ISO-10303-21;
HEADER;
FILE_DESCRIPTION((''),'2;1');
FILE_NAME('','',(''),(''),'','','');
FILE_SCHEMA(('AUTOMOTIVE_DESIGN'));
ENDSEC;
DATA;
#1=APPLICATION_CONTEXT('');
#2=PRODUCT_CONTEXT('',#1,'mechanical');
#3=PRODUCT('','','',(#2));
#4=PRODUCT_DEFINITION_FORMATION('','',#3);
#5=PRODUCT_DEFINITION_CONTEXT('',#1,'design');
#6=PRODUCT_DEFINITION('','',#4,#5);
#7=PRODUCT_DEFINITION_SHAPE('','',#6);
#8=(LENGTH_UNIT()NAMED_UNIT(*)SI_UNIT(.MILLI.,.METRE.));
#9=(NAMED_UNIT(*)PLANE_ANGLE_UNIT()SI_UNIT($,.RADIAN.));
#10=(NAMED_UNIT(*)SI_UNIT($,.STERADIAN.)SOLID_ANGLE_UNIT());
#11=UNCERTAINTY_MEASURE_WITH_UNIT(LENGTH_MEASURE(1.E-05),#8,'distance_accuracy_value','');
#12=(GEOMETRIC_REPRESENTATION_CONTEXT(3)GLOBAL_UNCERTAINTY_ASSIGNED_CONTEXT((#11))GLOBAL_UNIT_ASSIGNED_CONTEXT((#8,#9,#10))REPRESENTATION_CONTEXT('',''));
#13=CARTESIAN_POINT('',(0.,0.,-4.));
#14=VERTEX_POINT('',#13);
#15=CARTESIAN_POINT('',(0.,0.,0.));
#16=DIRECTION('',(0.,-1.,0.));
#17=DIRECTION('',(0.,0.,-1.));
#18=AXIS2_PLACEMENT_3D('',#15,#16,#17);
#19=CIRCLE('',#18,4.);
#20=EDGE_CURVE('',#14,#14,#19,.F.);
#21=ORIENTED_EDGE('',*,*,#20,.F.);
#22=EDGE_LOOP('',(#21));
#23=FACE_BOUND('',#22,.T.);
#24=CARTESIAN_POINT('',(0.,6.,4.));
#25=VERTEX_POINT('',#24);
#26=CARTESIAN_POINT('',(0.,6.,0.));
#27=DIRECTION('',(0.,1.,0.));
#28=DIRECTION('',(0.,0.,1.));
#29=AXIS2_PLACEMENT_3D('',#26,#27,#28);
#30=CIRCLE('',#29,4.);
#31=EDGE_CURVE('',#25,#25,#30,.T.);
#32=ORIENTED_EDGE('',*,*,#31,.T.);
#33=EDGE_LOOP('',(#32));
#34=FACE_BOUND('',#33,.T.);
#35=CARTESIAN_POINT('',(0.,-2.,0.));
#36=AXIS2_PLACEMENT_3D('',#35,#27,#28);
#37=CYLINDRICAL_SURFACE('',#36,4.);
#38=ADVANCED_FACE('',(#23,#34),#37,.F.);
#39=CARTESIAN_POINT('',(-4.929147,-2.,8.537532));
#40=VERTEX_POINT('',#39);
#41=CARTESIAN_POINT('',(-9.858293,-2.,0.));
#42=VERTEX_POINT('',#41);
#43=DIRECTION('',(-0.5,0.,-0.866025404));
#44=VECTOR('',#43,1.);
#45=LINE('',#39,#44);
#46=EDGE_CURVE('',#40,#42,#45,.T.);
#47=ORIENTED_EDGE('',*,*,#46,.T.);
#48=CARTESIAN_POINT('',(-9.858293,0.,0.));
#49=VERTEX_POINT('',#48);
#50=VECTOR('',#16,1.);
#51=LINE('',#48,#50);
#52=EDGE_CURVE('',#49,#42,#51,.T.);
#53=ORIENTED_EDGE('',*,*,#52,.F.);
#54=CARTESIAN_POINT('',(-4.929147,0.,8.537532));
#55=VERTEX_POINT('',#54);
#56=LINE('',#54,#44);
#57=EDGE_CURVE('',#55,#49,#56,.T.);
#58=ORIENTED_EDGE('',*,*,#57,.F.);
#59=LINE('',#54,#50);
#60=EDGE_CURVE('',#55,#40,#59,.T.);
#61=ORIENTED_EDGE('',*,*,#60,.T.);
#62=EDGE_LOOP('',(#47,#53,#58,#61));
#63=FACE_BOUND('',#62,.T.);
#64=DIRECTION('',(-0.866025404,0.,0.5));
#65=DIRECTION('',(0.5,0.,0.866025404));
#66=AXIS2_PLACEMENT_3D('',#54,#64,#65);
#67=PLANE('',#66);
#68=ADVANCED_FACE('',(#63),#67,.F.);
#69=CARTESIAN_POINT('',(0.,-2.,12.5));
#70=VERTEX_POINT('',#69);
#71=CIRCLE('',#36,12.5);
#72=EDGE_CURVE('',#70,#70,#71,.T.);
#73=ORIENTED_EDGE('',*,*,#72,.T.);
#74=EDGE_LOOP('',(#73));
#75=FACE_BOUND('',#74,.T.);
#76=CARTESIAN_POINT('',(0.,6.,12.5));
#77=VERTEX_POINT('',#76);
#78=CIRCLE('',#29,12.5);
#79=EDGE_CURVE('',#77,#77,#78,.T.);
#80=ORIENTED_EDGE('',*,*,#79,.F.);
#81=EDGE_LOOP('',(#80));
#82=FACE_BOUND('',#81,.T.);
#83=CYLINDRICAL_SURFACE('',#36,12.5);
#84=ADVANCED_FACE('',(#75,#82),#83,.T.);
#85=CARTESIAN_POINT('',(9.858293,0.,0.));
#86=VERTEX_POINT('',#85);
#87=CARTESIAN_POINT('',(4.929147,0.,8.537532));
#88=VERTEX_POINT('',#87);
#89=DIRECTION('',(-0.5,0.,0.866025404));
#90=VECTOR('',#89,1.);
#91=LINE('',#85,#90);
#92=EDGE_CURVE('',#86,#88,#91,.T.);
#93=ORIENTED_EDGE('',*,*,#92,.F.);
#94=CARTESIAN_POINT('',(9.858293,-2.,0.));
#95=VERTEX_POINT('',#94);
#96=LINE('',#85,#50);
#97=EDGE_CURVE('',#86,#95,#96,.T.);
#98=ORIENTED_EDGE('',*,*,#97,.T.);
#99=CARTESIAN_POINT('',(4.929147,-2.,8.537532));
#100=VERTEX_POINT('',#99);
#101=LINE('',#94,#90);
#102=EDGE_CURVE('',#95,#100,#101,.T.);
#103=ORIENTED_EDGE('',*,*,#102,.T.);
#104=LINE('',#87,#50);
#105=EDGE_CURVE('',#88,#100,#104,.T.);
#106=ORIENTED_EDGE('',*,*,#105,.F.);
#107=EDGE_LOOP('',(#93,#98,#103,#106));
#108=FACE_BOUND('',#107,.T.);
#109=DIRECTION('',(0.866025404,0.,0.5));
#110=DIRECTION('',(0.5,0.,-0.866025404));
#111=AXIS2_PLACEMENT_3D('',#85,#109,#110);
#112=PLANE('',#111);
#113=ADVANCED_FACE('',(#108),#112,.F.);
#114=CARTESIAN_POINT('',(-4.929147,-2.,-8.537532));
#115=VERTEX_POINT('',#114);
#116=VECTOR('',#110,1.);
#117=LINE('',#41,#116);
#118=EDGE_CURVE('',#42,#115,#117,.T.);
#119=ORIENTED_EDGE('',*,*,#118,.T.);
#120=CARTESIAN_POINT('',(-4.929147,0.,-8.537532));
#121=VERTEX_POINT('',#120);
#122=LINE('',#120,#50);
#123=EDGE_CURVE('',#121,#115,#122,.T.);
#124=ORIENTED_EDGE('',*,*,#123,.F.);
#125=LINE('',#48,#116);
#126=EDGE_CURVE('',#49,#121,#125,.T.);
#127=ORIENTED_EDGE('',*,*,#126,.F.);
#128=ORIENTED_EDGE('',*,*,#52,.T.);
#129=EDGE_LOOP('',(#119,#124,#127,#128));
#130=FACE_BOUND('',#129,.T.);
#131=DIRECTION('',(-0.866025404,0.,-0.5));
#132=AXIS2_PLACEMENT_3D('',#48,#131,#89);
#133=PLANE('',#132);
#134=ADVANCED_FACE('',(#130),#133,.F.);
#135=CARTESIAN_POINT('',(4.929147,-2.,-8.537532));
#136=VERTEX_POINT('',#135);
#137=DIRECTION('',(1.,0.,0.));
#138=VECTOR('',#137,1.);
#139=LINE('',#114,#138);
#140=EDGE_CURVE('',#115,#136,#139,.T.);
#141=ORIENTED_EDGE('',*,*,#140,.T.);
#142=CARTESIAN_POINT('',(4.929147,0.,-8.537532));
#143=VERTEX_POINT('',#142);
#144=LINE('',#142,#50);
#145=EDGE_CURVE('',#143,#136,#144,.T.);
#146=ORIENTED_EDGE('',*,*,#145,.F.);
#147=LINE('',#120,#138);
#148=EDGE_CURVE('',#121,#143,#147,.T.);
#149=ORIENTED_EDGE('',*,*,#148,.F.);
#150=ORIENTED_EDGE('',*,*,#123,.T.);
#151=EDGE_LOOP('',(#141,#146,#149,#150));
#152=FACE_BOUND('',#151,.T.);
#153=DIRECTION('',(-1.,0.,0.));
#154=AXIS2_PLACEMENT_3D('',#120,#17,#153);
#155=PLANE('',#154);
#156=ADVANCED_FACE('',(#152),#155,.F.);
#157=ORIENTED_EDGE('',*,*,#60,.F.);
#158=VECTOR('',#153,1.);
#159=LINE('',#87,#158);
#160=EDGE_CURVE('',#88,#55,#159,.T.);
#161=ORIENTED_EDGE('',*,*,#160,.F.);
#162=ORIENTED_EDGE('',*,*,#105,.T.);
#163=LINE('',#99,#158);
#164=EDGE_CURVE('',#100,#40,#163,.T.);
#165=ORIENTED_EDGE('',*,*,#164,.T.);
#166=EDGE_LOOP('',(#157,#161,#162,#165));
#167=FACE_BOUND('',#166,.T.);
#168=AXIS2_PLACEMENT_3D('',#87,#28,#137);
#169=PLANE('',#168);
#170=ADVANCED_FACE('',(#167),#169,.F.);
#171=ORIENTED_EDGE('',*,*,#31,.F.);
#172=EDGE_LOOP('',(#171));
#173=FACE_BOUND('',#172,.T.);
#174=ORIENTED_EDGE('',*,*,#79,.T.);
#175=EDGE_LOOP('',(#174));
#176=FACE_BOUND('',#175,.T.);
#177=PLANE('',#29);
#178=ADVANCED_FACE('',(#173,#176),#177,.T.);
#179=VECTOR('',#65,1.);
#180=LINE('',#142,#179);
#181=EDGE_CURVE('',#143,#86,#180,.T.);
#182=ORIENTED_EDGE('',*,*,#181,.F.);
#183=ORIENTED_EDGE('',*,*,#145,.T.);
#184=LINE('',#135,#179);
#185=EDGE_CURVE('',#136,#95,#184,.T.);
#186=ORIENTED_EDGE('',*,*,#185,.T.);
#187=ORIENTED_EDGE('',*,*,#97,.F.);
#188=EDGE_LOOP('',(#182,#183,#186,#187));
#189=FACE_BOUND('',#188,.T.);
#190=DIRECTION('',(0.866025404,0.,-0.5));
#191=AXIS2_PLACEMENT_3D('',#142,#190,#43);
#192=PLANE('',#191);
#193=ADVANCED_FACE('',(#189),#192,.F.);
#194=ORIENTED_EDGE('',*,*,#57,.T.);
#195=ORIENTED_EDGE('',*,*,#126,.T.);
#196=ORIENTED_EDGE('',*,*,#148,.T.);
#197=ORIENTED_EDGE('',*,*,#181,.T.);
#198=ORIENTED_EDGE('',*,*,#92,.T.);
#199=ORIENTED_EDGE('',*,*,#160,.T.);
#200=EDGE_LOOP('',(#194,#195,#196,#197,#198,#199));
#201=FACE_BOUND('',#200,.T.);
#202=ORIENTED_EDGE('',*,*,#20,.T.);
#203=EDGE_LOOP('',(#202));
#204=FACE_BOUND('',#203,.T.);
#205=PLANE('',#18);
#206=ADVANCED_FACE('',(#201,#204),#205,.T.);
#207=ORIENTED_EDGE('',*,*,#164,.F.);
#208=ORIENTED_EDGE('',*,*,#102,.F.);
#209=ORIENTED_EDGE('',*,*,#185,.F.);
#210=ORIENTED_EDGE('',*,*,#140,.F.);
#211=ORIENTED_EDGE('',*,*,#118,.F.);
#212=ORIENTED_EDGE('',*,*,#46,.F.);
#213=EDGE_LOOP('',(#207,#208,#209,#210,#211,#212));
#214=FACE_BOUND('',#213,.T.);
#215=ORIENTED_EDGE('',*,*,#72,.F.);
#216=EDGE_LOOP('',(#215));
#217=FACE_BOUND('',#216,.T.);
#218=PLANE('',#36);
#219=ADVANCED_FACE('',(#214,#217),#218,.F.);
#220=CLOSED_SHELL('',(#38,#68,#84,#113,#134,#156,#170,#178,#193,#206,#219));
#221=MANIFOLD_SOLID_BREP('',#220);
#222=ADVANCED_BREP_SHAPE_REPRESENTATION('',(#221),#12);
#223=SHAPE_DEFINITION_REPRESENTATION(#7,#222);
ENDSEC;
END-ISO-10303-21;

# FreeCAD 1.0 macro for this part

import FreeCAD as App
import Part
import Sketcher

V = App.Vector
Q = App.Units.Quantity


def add_polygon(sketch, points):
    """Adds a closed chain of lines whose ends are joined by coincident constraints."""
    first, n = sketch.GeometryCount, len(points)
    for a, b in zip(points, points[1:] + points[:1]):
        sketch.addGeometry(Part.LineSegment(App.Vector(*a, 0), App.Vector(*b, 0)), False)
    for i in range(n):
        sketch.addConstraint(Sketcher.Constraint("Coincident", first + i, 2, first + (i + 1) % n, 1))

doc = App.newDocument("Part")
body = doc.addObject("PartDesign::Body", "Body")

# Sketch on XZ plane
sketch1 = body.newObject("Sketcher::SketchObject", "Sketch")
sketch1.AttachmentSupport = (doc.getObject("XZ_Plane"), [""])
sketch1.MapMode = "FlatFace"
sketch1.addGeometry([
    Part.Circle(V(0, 0, 0), V(0, 0, 1), 12.5),
    Part.Circle(V(0, 0, 0), V(0, 0, 1), 4),
], False)
sketch1.addConstraint([
    Sketcher.Constraint("Coincident", 0, 3, -1, 1),
    Sketcher.Constraint("Coincident", 1, 3, -1, 1),
    Sketcher.Constraint("Diameter", 0, Q("25 mm")),
    Sketcher.Constraint("Diameter", 1, Q("8 mm")),
])
pad1 = body.newObject("PartDesign::Pad", "Pad")
pad1.Profile = sketch1
pad1.Type = "TwoLengths"
pad1.Length = 6
pad1.Length2 = 2
pad1.Reversed = True

# Sketch on XZ plane
sketch2 = body.newObject("Sketcher::SketchObject", "Sketch001")
sketch2.AttachmentSupport = (doc.getObject("XZ_Plane"), [""])
sketch2.MapMode = "FlatFace"
sketch2.AttachmentOffset = App.Placement(V(0, 0, 2), App.Rotation())
add_polygon(sketch2, [(10, 0), (5, 9), (-5, 9), (-10, 0), (-5, -9), (5, -9)])  # lines 0-5
sketch2.addConstraint([
    Sketcher.Constraint("Horizontal", 1),
    Sketcher.Constraint("Horizontal", 4),
    Sketcher.Constraint("Symmetric", 0, 2, 3, 2, -1, 1),
    Sketcher.Constraint("Symmetric", 2, 2, 5, 2, -1, 1),
    Sketcher.Constraint("PointOnObject", 2, 2, -1),
    Sketcher.Constraint("Parallel", 2, 5),
    Sketcher.Constraint("Vertical", 1, 2, 3, 2),
    Sketcher.Constraint("Angle", 0, Q("120 deg")),
    Sketcher.Constraint("DistanceX", 1, 2, 1, 1, Q("9.858293 mm")),
    Sketcher.Constraint("DistanceX", 2, 2, 0, 2, Q("14.78744 mm")),
])
pocket1 = body.newObject("PartDesign::Pocket", "Pocket")
pocket1.Profile = sketch2
pocket1.Length = 2

doc.recompute()
